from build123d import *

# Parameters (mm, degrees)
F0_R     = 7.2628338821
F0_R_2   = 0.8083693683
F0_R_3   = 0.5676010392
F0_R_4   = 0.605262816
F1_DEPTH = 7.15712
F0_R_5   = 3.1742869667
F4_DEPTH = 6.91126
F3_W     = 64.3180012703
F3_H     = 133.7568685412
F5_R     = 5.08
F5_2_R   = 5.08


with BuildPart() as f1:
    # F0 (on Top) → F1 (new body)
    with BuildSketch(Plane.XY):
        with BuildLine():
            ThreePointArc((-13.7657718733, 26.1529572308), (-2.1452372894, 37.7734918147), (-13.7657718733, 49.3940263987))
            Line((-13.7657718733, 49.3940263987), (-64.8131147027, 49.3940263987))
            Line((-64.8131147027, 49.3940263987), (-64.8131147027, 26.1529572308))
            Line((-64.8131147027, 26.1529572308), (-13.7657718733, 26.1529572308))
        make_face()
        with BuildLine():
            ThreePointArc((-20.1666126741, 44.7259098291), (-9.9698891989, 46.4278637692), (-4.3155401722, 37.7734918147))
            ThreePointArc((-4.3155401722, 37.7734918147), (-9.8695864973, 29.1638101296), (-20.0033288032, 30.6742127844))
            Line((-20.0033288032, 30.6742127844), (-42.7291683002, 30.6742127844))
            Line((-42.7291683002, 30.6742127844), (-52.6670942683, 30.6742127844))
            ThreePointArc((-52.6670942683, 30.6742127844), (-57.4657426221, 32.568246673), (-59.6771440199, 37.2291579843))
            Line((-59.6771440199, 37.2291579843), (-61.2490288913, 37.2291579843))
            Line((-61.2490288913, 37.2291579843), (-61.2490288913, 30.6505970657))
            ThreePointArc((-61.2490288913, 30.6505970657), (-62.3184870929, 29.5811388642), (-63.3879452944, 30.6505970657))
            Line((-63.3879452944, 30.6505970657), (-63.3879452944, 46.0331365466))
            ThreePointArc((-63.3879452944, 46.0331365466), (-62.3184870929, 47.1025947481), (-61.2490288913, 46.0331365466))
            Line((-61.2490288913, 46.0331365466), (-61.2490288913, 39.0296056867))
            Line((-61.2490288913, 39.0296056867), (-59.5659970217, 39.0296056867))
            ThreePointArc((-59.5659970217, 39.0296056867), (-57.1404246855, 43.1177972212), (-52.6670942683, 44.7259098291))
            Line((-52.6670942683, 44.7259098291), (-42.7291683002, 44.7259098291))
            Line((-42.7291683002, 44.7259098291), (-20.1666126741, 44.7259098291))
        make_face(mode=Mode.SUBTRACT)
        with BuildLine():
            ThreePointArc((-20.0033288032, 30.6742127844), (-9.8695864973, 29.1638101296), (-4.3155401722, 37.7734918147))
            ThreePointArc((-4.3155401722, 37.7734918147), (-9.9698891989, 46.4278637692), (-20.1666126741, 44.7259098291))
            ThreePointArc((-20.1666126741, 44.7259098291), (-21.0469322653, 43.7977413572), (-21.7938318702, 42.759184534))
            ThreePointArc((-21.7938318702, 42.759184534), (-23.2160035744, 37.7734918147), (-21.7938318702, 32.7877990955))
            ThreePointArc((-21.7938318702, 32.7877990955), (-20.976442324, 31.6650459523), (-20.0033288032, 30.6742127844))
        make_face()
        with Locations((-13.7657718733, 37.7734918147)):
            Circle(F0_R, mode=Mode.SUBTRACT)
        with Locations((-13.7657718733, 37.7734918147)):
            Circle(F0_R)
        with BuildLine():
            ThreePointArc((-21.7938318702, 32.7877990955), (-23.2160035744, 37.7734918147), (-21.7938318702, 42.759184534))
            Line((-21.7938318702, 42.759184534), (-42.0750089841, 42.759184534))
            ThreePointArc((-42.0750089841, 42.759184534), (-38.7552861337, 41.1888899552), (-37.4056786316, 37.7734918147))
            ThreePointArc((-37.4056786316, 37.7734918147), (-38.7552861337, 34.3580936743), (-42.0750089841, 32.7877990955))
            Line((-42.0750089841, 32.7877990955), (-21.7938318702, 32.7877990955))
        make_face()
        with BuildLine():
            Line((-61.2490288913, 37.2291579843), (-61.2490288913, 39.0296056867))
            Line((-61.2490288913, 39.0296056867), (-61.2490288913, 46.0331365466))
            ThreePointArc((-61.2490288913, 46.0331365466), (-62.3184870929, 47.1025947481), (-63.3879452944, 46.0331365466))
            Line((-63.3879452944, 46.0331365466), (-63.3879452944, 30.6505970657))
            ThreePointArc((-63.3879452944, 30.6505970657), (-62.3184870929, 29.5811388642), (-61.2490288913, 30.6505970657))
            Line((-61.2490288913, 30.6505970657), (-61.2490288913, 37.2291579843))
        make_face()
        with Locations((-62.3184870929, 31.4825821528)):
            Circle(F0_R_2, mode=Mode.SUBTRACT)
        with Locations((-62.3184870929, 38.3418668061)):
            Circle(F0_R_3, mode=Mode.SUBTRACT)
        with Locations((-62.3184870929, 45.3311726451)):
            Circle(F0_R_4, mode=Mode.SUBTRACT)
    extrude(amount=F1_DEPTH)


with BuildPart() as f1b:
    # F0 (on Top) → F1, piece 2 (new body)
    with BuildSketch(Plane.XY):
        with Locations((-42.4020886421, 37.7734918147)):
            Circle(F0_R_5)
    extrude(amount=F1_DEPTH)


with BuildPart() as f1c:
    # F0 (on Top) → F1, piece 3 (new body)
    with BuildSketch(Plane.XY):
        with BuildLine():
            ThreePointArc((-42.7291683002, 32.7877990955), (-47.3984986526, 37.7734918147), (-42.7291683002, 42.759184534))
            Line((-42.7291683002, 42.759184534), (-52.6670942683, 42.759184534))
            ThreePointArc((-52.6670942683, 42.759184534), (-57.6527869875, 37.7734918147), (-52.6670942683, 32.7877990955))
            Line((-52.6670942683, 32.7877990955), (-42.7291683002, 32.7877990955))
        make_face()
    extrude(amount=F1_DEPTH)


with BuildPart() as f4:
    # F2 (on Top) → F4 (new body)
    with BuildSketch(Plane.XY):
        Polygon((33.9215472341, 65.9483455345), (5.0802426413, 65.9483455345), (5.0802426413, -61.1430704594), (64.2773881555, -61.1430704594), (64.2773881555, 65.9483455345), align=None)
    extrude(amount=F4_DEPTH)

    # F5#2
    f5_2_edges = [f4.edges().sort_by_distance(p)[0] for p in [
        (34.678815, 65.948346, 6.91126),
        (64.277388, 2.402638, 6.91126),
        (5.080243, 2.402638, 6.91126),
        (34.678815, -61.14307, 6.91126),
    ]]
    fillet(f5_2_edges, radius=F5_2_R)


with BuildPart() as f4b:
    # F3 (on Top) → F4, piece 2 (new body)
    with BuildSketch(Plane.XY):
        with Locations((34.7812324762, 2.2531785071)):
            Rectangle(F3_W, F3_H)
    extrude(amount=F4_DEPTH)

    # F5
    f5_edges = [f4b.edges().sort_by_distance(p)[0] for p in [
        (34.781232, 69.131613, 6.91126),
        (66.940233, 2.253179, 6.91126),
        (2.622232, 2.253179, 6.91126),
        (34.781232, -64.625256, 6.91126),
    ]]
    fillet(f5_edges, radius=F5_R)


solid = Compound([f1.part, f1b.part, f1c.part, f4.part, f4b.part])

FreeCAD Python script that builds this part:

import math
import FreeCAD as App
import Part
import Sketcher
from FreeCAD import Vector
Q = App.Units.Quantity


def edges_at(feature, points):
    """Names of the edges that pass closest to the given points."""
    edges = feature.Shape.Edges
    near = lambda p: min(range(len(edges)), key=lambda i: edges[i].distToShape(Part.Vertex(*p))[0])
    return sorted({f"Edge{near(p) + 1}" for p in points})

doc = App.newDocument("Part")
body = doc.addObject("PartDesign::Body", "Body")

sketch1 = doc.addObject("Sketcher::SketchObject", "Sketch")
body.addObject(sketch1)
sketch1.AttachmentSupport = (doc.XY_Plane, [""])
sketch1.MapMode = "FlatFace"
sketch1.addGeometry(Part.ArcOfCircle(Part.Circle(Vector(-13.8, 37.8, 0), Vector(0, 0, 1), 11.6), math.radians(-90), math.radians(90)), False)
sketch1.addGeometry(Part.LineSegment(Vector(-13.8, 49.4, 0), Vector(-64.8, 49.4, 0)), False)
sketch1.addGeometry(Part.LineSegment(Vector(-64.8, 49.4, 0), Vector(-64.8, 26.2, 0)), False)
sketch1.addGeometry(Part.LineSegment(Vector(-64.8, 26.2, 0), Vector(-13.8, 26.2, 0)), False)
sketch1.addGeometry(Part.Circle(Vector(-62.3, 31.5, 0), Vector(0, 0, 1), 0.8), False)
sketch1.addGeometry(Part.LineSegment(Vector(-52.7, 44.7, 0), Vector(-20.2, 44.7, 0)), False)
sketch1.addGeometry(Part.ArcOfCircle(Part.Circle(Vector(-13.8, 37.8, 0), Vector(0, 0, 1), 9.5), math.radians(132.63), math.radians(148.16)), False)
sketch1.addGeometry(Part.LineSegment(Vector(-21.8, 42.8, 0), Vector(-42.1, 42.8, 0)), False)
sketch1.addGeometry(Part.ArcOfCircle(Part.Circle(Vector(-42.4, 37.8, 0), Vector(0, 0, 1), 5), math.radians(0), math.radians(86)), False)
sketch1.addGeometry(Part.ArcOfCircle(Part.Circle(Vector(-42.4, 37.8, 0), Vector(0, 0, 1), 5), math.radians(-86), math.radians(0)), False)
sketch1.addGeometry(Part.LineSegment(Vector(-42.1, 32.8, 0), Vector(-21.8, 32.8, 0)), False)
sketch1.addGeometry(Part.ArcOfCircle(Part.Circle(Vector(-13.8, 37.8, 0), Vector(0, 0, 1), 9.5), math.radians(-148.16), math.radians(-131.3)), False)
sketch1.addGeometry(Part.LineSegment(Vector(-20, 30.7, 0), Vector(-52.7, 30.7, 0)), False)
sketch1.addGeometry(Part.ArcOfCircle(Part.Circle(Vector(-52.7, 37.7, 0), Vector(0, 0, 1), 7), math.radians(-176), math.radians(-90)), False)
sketch1.addGeometry(Part.LineSegment(Vector(-59.7, 37.2, 0), Vector(-61.2, 37.2, 0)), False)
sketch1.addGeometry(Part.LineSegment(Vector(-61.2, 37.2, 0), Vector(-61.2, 39, 0)), False)
sketch1.addGeometry(Part.LineSegment(Vector(-61.2, 39, 0), Vector(-59.6, 39, 0)), False)
sketch1.addGeometry(Part.ArcOfCircle(Part.Circle(Vector(-52.7, 37.7, 0), Vector(0, 0, 1), 7), math.radians(90), math.radians(169)), False)
sketch1.addGeometry(Part.Circle(Vector(-62.3, 38.3, 0), Vector(0, 0, 1), 0.6), False)
sketch1.addGeometry(Part.Circle(Vector(-62.3, 45.3, 0), Vector(0, 0, 1), 0.6), False)
sketch1.addConstraint(Sketcher.Constraint("Tangent", 0, 2, 1, 1))
sketch1.addConstraint(Sketcher.Constraint("Coincident", 1, 2, 2, 1))
sketch1.addConstraint(Sketcher.Constraint("Coincident", 2, 2, 3, 1))
sketch1.addConstraint(Sketcher.Constraint("Tangent", 3, 2, 0, 1))
sketch1.addConstraint(Sketcher.Constraint("Coincident", 5, 2, 6, 1))
sketch1.addConstraint(Sketcher.Constraint("Coincident", 6, 2, 7, 1))
sketch1.addConstraint(Sketcher.Constraint("Coincident", 7, 2, 8, 2))
sketch1.addConstraint(Sketcher.Constraint("Tangent", 8, 1, 9, 2))
sketch1.addConstraint(Sketcher.Constraint("Coincident", 9, 1, 10, 1))
sketch1.addConstraint(Sketcher.Constraint("Coincident", 10, 2, 11, 1))
sketch1.addConstraint(Sketcher.Constraint("Coincident", 11, 2, 12, 1))
sketch1.addConstraint(Sketcher.Constraint("Tangent", 12, 2, 13, 2))
sketch1.addConstraint(Sketcher.Constraint("Coincident", 13, 1, 14, 1))
sketch1.addConstraint(Sketcher.Constraint("Coincident", 14, 2, 15, 1))
sketch1.addConstraint(Sketcher.Constraint("Coincident", 15, 2, 16, 1))
sketch1.addConstraint(Sketcher.Constraint("Coincident", 16, 2, 17, 2))
sketch1.addConstraint(Sketcher.Constraint("Tangent", 17, 1, 5, 1))
sketch1.addConstraint(Sketcher.Constraint("Horizontal", 1))
sketch1.addConstraint(Sketcher.Constraint("Vertical", 2))
sketch1.addConstraint(Sketcher.Constraint("Horizontal", 3))
sketch1.addConstraint(Sketcher.Constraint("Horizontal", 5))
sketch1.addConstraint(Sketcher.Constraint("Horizontal", 7))
sketch1.addConstraint(Sketcher.Constraint("Horizontal", 10))
sketch1.addConstraint(Sketcher.Constraint("Horizontal", 12))
sketch1.addConstraint(Sketcher.Constraint("Horizontal", 14))
sketch1.addConstraint(Sketcher.Constraint("Vertical", 15))
sketch1.addConstraint(Sketcher.Constraint("Horizontal", 16))
sketch1.addConstraint(Sketcher.Constraint("Coincident", 6, 3, 0, 3))
sketch1.addConstraint(Sketcher.Constraint("Coincident", 11, 3, 0, 3))
sketch1.addConstraint(Sketcher.Constraint("Coincident", 17, 3, 13, 3))
sketch1.addConstraint(Sketcher.Constraint("Equal", 8, 9))
sketch1.addConstraint(Sketcher.Constraint("Equal", 6, 11))
sketch1.addConstraint(Sketcher.Constraint("Equal", 13, 17))
sketch1.addConstraint(Sketcher.Constraint("Horizontal", 6, 3, 8, 3))
sketch1.addConstraint(Sketcher.Constraint("Horizontal", 11, 3, 8, 1))
sketch1.addConstraint(Sketcher.Constraint("Vertical", 4, 3, 18, 3))
sketch1.addConstraint(Sketcher.Constraint("Vertical", 18, 3, 19, 3))
sketch1.addConstraint(Sketcher.Constraint("Vertical", 7, 2, 9, 1))
sketch1.addConstraint(Sketcher.Constraint("Diameter", 4, 1.616739))
sketch1.addConstraint(Sketcher.Constraint("Radius", 6, 9.450232))
sketch1.addConstraint(Sketcher.Constraint("Radius", 8, 4.99641))
sketch1.addConstraint(Sketcher.Constraint("Radius", 13, 7.025849))
sketch1.addConstraint(Sketcher.Constraint("Diameter", 18, 1.135202))
sketch1.addConstraint(Sketcher.Constraint("Diameter", 19, 1.210526))
sketch1.addConstraint(Sketcher.Constraint("Radius", 0, 11.620535))
sketch1.addConstraint(Sketcher.Constraint("DistanceX", 5, 1, 5, 2, 32.500482))
sketch1.addConstraint(Sketcher.Constraint("DistanceX", 16, 1, 16, 2, 1.683032))
sketch1.addConstraint(Sketcher.Constraint("DistanceY", -1, 1, 9, 1, 32.787799))
sketch1.addConstraint(Sketcher.Constraint("DistanceX", 4, 3, 8, 3, 19.916398))
sketch1.addConstraint(Sketcher.Constraint("DistanceX", 1, 2, 1, 1, 51.047343))
sketch1.addConstraint(Sketcher.Constraint("DistanceX", 7, 2, 7, 1, 20.281177))
sketch1.addConstraint(Sketcher.Constraint("DistanceX", 12, 2, 12, 1, 32.663765))
sketch1.addConstraint(Sketcher.Constraint("DistanceX", 14, 2, 14, 1, 1.571885))
sketch1.addConstraint(Sketcher.Constraint("DistanceY", 15, 1, 15, 2, 1.800448))
sketch1.addConstraint(Sketcher.Constraint("DistanceX", 0, 3, -1, 1, 13.765772))
sketch1.addConstraint(Sketcher.Constraint("DistanceY", -1, 1, 0, 3, 37.773492))
sketch1.addConstraint(Sketcher.Constraint("DistanceY", 4, 3, 0, 3, 6.29091))
sketch1.addConstraint(Sketcher.Constraint("DistanceY", 17, 3, 19, 3, 7.631111))
sketch1.addConstraint(Sketcher.Constraint("DistanceY", 18, 3, 1, 2, 11.05216))
pad1 = doc.addObject("PartDesign::Pad", "Pad")
body.addObject(pad1)
pad1.Profile = sketch1
pad1.Length = 7.15712
body2 = doc.addObject("PartDesign::Body", "Body001")

sketch2 = doc.addObject("Sketcher::SketchObject", "Sketch001")
body2.addObject(sketch2)
sketch2.AttachmentSupport = (doc.getObject("XY_Plane001"), [""])
sketch2.MapMode = "FlatFace"
sketch2.addGeometry(Part.Circle(Vector(-42.4, 37.8, 0), Vector(0, 0, 1), 3.2), False)
sketch2.addConstraint(Sketcher.Constraint("Diameter", 0, 6.348574))
sketch2.addConstraint(Sketcher.Constraint("DistanceX", 0, 3, -1, 1, 42.402089))
sketch2.addConstraint(Sketcher.Constraint("DistanceY", -1, 1, 0, 3, 37.773492))
pad2 = doc.addObject("PartDesign::Pad", "Pad001")
body2.addObject(pad2)
pad2.Profile = sketch2
pad2.Length = 7.15712
body3 = doc.addObject("PartDesign::Body", "Body002")

sketch3 = doc.addObject("Sketcher::SketchObject", "Sketch002")
body3.addObject(sketch3)
sketch3.AttachmentSupport = (doc.getObject("XY_Plane002"), [""])
sketch3.MapMode = "FlatFace"
sketch3.addGeometry(Part.ArcOfCircle(Part.Circle(Vector(-42.4, 37.8, 0), Vector(0, 0, 1), 5), math.radians(94), math.radians(266)), False)
sketch3.addGeometry(Part.LineSegment(Vector(-42.7, 42.8, 0), Vector(-52.7, 42.8, 0)), False)
sketch3.addGeometry(Part.ArcOfCircle(Part.Circle(Vector(-52.7, 37.8, 0), Vector(0, 0, 1), 5), math.radians(90), math.radians(270)), False)
sketch3.addGeometry(Part.LineSegment(Vector(-52.7, 32.8, 0), Vector(-42.7, 32.8, 0)), False)
sketch3.addConstraint(Sketcher.Constraint("Coincident", 0, 1, 1, 1))
sketch3.addConstraint(Sketcher.Constraint("Tangent", 1, 2, 2, 1))
sketch3.addConstraint(Sketcher.Constraint("Tangent", 2, 2, 3, 1))
sketch3.addConstraint(Sketcher.Constraint("Coincident", 3, 2, 0, 2))
sketch3.addConstraint(Sketcher.Constraint("Horizontal", 1))
sketch3.addConstraint(Sketcher.Constraint("Horizontal", 3))
sketch3.addConstraint(Sketcher.Constraint("Horizontal", 0, 3, 2, 3))
sketch3.addConstraint(Sketcher.Constraint("Radius", 0, 4.99641))
sketch3.addConstraint(Sketcher.Constraint("Radius", 2, 4.985693))
sketch3.addConstraint(Sketcher.Constraint("DistanceY", -1, 1, 2, 2, 32.787799))
sketch3.addConstraint(Sketcher.Constraint("DistanceX", 1, 2, 1, 1, 9.937926))
sketch3.addConstraint(Sketcher.Constraint("DistanceX", 0, 3, -1, 1, 42.402089))
pad3 = doc.addObject("PartDesign::Pad", "Pad002")
body3.addObject(pad3)
pad3.Profile = sketch3
pad3.Length = 7.15712
body4 = doc.addObject("PartDesign::Body", "Body003")

sketch4 = doc.addObject("Sketcher::SketchObject", "Sketch003")
body4.addObject(sketch4)
sketch4.AttachmentSupport = (doc.getObject("XY_Plane003"), [""])
sketch4.MapMode = "FlatFace"
sketch4.addGeometry(Part.LineSegment(Vector(5, 66, 0), Vector(5, -61, 0)), False)
sketch4.addGeometry(Part.LineSegment(Vector(5, -61, 0), Vector(64, -61, 0)), False)
sketch4.addGeometry(Part.LineSegment(Vector(64, -61, 0), Vector(64, 66, 0)), False)
sketch4.addGeometry(Part.LineSegment(Vector(64, 66, 0), Vector(5, 66, 0)), False)
sketch4.addConstraint(Sketcher.Constraint("Coincident", 0, 2, 1, 1))
sketch4.addConstraint(Sketcher.Constraint("Coincident", 1, 2, 2, 1))
sketch4.addConstraint(Sketcher.Constraint("Coincident", 2, 2, 3, 1))
sketch4.addConstraint(Sketcher.Constraint("Coincident", 3, 2, 0, 1))
sketch4.addConstraint(Sketcher.Constraint("Vertical", 0))
sketch4.addConstraint(Sketcher.Constraint("Horizontal", 1))
sketch4.addConstraint(Sketcher.Constraint("Vertical", 2))
sketch4.addConstraint(Sketcher.Constraint("Horizontal", 3))
sketch4.addConstraint(Sketcher.Constraint("DistanceX", 1, 1, 1, 2, 59.197146))
sketch4.addConstraint(Sketcher.Constraint("DistanceY", 0, 2, 0, 1, 127.091416))
sketch4.addConstraint(Sketcher.Constraint("DistanceY", 0, 2, -1, 1, 61.14307))
sketch4.addConstraint(Sketcher.Constraint("DistanceX", -1, 1, 1, 2, 64.277388))
pad4 = doc.addObject("PartDesign::Pad", "Pad003")
body4.addObject(pad4)
pad4.Profile = sketch4
pad4.Length = 6.91126
doc.recompute()

fillet = doc.addObject("PartDesign::Fillet", "Fillet")
body4.addObject(fillet)
fillet.Base = (pad4, edges_at(pad4, [
    (34.679, 65.948, 6.911),
    (64.277, 2.403, 6.911),
    (5.08, 2.403, 6.911),
    (34.679, -61.143, 6.911),
]))
fillet.Radius = Q("0.2 in")
body5 = doc.addObject("PartDesign::Body", "Body004")

sketch5 = doc.addObject("Sketcher::SketchObject", "Sketch004")
body5.addObject(sketch5)
sketch5.AttachmentSupport = (doc.getObject("XY_Plane004"), [""])
sketch5.MapMode = "FlatFace"
sketch5.addGeometry(Part.LineSegment(Vector(3, 69, 0), Vector(3, -65, 0)), False)
sketch5.addGeometry(Part.LineSegment(Vector(3, -65, 0), Vector(67, -65, 0)), False)
sketch5.addGeometry(Part.LineSegment(Vector(67, -65, 0), Vector(67, 69, 0)), False)
sketch5.addGeometry(Part.LineSegment(Vector(67, 69, 0), Vector(3, 69, 0)), False)
sketch5.addConstraint(Sketcher.Constraint("Coincident", 0, 2, 1, 1))
sketch5.addConstraint(Sketcher.Constraint("Coincident", 1, 2, 2, 1))
sketch5.addConstraint(Sketcher.Constraint("Coincident", 2, 2, 3, 1))
sketch5.addConstraint(Sketcher.Constraint("Coincident", 3, 2, 0, 1))
sketch5.addConstraint(Sketcher.Constraint("Vertical", 0))
sketch5.addConstraint(Sketcher.Constraint("Horizontal", 1))
sketch5.addConstraint(Sketcher.Constraint("Vertical", 2))
sketch5.addConstraint(Sketcher.Constraint("Horizontal", 3))
sketch5.addConstraint(Sketcher.Constraint("DistanceX", 1, 1, 1, 2, 64.318001))
sketch5.addConstraint(Sketcher.Constraint("DistanceY", 0, 2, 0, 1, 133.756869))
sketch5.addConstraint(Sketcher.Constraint("DistanceX", -1, 1, 0, 2, 2.622232))
sketch5.addConstraint(Sketcher.Constraint("DistanceY", 0, 2, -1, 1, 64.625256))
pad5 = doc.addObject("PartDesign::Pad", "Pad004")
body5.addObject(pad5)
pad5.Profile = sketch5
pad5.Length = 6.91126
doc.recompute()

fillet2 = doc.addObject("PartDesign::Fillet", "Fillet001")
body5.addObject(fillet2)
fillet2.Base = (pad5, edges_at(pad5, [
    (34.781, 69.132, 6.911),
    (66.94, 2.253, 6.911),
    (2.622, 2.253, 6.911),
    (34.781, -64.625, 6.911),
]))
fillet2.Radius = Q("0.2 in")

doc.recompute()
